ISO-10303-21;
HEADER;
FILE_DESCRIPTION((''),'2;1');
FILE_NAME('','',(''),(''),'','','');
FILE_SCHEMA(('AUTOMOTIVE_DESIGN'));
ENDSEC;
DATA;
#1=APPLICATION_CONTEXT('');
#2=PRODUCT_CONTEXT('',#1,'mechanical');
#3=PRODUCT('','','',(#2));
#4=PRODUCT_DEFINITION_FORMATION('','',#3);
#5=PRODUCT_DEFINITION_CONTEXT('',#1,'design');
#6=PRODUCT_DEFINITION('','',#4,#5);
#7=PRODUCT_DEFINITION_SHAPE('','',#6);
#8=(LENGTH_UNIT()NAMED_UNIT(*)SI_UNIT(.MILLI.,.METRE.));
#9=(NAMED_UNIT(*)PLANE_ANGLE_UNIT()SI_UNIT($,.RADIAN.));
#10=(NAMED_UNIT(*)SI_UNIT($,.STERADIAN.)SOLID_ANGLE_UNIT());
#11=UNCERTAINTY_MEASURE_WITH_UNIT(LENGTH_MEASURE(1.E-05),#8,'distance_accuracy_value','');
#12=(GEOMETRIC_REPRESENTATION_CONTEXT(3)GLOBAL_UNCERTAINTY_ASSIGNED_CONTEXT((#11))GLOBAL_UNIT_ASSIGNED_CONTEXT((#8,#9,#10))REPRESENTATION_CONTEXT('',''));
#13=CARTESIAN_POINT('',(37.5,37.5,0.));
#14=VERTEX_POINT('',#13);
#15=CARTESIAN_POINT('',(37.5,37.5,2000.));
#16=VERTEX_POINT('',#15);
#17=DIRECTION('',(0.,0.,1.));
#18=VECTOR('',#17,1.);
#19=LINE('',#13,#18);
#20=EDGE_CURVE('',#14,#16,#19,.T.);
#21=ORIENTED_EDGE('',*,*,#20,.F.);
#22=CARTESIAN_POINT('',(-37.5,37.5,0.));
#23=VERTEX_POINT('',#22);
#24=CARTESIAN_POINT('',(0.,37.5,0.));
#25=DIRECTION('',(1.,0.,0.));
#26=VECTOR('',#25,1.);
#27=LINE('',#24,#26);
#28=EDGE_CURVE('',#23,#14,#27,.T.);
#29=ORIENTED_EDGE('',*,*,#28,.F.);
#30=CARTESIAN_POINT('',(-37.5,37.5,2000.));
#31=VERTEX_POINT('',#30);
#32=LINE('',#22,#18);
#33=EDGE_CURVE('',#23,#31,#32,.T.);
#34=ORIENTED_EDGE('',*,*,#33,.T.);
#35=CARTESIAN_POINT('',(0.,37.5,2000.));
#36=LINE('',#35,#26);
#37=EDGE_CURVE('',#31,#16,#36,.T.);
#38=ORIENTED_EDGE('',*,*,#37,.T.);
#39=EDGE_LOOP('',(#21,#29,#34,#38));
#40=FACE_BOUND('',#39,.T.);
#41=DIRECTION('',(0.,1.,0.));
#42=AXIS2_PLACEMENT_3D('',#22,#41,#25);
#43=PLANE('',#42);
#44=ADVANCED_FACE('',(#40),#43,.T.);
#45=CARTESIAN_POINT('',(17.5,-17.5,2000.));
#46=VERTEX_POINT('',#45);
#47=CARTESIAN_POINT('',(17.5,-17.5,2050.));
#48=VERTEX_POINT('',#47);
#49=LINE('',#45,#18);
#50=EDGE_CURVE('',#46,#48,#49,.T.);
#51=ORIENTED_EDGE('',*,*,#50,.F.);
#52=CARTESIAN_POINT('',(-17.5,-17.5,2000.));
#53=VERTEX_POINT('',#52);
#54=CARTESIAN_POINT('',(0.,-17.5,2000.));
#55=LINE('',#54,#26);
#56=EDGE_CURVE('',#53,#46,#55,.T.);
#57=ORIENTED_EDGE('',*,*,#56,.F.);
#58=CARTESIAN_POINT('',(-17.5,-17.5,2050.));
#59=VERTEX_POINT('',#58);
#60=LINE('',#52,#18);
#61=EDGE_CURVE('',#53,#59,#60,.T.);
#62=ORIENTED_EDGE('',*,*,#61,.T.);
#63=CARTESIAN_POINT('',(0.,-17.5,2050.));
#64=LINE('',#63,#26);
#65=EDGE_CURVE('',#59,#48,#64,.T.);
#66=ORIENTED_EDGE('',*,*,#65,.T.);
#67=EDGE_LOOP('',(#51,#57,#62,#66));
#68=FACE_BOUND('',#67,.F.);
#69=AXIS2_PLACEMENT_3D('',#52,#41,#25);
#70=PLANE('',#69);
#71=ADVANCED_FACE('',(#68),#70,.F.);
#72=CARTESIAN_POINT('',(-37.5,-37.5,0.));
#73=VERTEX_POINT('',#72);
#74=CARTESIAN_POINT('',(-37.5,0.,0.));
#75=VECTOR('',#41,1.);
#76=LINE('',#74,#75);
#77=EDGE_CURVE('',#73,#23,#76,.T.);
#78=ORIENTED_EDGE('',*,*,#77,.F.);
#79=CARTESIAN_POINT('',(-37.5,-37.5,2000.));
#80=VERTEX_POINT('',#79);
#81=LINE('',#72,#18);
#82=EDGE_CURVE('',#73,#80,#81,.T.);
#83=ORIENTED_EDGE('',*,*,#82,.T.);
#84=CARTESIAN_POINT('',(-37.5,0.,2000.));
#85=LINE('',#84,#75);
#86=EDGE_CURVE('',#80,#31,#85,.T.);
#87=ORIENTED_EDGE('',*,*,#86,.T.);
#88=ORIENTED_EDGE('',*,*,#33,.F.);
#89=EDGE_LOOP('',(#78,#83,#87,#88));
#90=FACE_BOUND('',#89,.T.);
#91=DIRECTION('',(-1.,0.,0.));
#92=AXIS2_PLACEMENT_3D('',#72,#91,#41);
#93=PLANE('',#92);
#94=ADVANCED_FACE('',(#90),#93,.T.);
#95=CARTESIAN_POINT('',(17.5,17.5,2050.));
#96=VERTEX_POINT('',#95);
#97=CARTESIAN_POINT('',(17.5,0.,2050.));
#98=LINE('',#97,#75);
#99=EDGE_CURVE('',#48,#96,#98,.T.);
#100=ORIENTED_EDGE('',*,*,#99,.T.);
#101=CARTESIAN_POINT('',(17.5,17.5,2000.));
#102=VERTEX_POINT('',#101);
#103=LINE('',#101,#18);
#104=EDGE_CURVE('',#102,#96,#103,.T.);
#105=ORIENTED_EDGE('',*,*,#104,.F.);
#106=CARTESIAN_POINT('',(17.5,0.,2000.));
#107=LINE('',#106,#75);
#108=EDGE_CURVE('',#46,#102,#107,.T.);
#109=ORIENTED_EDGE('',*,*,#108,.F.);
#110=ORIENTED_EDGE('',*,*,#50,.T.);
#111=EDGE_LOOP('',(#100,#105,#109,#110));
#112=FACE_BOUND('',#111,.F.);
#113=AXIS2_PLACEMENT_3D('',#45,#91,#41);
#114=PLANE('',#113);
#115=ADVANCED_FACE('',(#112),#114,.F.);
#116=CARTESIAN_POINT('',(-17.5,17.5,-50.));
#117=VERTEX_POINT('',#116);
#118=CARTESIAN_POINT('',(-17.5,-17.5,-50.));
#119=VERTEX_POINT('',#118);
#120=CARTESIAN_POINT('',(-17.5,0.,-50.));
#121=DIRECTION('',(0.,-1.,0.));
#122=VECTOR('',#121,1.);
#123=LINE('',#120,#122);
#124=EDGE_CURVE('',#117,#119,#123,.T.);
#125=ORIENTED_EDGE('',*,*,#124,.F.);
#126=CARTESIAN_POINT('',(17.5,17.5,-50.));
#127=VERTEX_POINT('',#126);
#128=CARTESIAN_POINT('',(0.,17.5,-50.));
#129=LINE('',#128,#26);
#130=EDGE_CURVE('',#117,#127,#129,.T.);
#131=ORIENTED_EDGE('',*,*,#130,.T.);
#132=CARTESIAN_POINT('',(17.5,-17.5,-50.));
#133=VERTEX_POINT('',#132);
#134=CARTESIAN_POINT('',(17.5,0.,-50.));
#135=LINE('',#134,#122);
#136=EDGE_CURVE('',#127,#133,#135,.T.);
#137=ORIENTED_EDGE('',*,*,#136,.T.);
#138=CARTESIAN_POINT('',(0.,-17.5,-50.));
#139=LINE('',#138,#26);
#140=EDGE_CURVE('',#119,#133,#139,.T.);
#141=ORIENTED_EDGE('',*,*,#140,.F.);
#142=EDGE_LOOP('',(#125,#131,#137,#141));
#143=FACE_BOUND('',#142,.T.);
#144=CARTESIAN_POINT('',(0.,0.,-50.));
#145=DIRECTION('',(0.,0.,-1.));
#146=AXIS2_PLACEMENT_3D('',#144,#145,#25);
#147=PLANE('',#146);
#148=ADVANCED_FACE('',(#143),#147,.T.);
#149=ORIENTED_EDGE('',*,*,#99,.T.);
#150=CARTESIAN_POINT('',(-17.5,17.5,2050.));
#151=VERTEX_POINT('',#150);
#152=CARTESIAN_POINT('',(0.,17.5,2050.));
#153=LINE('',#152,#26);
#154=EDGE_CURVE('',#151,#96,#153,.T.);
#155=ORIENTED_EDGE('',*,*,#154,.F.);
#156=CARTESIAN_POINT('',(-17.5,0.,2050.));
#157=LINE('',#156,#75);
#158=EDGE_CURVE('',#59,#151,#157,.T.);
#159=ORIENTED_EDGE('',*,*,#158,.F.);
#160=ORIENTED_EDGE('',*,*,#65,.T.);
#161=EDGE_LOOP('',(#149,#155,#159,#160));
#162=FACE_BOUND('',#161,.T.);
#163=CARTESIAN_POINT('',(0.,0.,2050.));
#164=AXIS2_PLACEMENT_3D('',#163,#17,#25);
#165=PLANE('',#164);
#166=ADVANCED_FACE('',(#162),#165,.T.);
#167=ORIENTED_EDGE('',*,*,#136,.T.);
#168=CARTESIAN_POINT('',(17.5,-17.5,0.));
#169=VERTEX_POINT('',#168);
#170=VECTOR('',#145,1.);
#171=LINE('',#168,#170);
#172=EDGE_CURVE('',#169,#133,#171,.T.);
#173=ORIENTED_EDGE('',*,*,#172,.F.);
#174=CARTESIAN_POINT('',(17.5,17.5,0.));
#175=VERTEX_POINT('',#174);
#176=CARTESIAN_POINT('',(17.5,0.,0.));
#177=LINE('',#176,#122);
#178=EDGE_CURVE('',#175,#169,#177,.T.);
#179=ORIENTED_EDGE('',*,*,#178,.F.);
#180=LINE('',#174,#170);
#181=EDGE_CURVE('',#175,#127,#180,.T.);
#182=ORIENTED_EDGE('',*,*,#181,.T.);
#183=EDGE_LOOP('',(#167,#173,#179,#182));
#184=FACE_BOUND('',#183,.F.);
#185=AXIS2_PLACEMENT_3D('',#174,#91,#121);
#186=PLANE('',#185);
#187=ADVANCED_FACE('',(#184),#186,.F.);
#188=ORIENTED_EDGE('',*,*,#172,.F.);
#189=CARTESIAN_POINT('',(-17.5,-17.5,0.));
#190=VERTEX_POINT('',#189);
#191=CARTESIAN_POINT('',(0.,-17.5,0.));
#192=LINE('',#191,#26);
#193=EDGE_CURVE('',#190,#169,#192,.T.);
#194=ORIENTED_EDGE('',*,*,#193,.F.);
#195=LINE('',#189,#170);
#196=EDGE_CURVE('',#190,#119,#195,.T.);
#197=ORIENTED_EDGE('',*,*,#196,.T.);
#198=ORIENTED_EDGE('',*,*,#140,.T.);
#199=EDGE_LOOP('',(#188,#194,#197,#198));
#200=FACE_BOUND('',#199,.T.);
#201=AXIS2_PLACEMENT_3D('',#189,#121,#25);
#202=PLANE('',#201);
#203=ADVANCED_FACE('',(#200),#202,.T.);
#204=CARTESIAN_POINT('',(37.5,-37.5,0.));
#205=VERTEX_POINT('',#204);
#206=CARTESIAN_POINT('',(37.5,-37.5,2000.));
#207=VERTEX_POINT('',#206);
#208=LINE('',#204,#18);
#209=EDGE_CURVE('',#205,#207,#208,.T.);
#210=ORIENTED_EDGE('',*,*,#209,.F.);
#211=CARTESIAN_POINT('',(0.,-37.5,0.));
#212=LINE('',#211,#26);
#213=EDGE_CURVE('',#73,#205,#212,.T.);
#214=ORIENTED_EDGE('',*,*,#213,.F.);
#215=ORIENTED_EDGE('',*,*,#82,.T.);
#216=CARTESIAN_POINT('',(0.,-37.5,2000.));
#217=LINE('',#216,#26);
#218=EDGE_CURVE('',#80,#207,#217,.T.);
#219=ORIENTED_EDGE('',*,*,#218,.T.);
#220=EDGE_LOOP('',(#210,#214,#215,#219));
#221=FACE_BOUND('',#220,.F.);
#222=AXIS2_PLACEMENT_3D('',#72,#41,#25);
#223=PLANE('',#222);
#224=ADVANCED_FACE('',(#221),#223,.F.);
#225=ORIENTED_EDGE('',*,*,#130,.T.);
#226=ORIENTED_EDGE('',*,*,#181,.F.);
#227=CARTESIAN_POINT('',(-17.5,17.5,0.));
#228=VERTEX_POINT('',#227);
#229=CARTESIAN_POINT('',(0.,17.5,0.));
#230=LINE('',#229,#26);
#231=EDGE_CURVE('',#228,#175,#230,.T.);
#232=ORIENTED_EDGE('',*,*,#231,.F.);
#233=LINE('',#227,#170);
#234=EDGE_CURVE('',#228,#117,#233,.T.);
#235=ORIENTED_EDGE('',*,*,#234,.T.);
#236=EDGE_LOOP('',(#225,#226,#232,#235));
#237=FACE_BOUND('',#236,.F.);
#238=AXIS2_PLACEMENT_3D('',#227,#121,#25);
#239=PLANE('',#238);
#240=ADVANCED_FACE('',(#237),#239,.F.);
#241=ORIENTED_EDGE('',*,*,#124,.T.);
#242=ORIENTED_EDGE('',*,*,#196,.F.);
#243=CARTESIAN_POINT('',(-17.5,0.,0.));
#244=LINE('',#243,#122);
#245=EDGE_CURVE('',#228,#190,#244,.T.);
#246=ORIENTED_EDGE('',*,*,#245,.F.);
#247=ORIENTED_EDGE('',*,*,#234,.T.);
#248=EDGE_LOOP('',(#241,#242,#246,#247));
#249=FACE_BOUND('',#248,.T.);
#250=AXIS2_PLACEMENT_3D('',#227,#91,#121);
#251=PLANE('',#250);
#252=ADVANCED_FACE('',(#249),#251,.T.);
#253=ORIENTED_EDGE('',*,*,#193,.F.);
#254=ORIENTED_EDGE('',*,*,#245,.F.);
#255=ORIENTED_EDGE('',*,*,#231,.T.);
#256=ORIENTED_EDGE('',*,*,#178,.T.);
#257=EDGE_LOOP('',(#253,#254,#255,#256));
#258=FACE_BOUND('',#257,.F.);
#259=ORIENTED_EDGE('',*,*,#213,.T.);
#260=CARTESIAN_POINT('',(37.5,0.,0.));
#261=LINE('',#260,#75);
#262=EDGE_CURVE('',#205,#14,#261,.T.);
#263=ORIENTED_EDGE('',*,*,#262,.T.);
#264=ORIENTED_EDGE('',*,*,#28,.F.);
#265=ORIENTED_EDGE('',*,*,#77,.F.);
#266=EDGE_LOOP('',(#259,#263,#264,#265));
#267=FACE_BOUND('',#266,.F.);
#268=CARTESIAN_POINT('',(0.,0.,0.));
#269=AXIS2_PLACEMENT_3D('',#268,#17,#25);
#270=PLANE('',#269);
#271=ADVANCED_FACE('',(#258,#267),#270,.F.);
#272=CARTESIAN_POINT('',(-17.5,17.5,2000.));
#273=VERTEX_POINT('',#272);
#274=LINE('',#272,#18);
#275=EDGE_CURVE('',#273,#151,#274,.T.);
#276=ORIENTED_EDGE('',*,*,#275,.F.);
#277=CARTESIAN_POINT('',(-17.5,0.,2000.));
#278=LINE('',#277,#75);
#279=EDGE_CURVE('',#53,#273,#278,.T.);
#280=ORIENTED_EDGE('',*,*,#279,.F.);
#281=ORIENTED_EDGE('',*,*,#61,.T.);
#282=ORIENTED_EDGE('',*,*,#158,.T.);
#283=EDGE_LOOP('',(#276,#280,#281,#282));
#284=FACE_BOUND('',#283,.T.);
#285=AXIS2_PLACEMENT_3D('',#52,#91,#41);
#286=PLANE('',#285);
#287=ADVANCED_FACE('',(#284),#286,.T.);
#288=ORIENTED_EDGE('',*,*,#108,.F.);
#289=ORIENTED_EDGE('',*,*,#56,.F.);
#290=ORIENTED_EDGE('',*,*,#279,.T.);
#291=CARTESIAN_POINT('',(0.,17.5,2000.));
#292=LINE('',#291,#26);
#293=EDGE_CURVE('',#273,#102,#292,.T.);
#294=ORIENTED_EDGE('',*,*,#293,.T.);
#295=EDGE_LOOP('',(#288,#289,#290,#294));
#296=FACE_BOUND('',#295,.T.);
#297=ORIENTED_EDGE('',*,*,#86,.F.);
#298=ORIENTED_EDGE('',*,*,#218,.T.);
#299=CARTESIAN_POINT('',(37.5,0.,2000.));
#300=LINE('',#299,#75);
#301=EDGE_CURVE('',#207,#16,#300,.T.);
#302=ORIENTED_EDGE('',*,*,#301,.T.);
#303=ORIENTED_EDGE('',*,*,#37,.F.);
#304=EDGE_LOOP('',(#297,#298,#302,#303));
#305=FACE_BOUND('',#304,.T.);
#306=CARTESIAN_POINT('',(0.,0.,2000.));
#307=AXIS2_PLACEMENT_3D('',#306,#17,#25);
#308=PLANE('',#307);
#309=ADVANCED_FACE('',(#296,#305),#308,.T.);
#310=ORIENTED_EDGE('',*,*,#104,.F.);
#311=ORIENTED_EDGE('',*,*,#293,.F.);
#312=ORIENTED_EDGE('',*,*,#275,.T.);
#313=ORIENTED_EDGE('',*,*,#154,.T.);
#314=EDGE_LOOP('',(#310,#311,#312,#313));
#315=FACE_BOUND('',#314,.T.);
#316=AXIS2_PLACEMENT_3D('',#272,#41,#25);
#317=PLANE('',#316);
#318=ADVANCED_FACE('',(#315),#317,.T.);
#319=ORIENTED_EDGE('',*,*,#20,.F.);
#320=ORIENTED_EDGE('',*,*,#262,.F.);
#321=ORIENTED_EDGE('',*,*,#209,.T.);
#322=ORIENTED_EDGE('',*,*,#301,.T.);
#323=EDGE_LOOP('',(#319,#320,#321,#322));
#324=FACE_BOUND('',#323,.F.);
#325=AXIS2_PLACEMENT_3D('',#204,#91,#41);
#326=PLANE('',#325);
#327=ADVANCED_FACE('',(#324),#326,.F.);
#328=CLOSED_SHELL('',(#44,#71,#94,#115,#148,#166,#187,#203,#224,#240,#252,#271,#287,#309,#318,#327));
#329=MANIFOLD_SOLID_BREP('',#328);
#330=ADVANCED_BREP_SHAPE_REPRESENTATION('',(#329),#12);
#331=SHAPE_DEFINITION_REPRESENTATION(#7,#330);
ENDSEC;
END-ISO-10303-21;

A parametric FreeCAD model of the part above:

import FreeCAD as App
import Part
import Sketcher

V = App.Vector

doc = App.newDocument("Part")
body = doc.addObject("PartDesign::Body", "Body")

# Sketch on XY plane
sketch1 = body.newObject("Sketcher::SketchObject", "Sketch")
sketch1.AttachmentSupport = (doc.getObject("XY_Plane"), [""])
sketch1.MapMode = "FlatFace"
sketch1.addGeometry([
    Part.LineSegment(V(-38, 38, 0), V(-38, -38, 0)),
    Part.LineSegment(V(-38, -38, 0), V(38, -38, 0)),
    Part.LineSegment(V(38, -38, 0), V(38, 38, 0)),
    Part.LineSegment(V(38, 38, 0), V(-38, 38, 0)),
], False)
sketch1.addConstraint([
    Sketcher.Constraint("Coincident", 0, 2, 1, 1),
    Sketcher.Constraint("Coincident", 1, 2, 2, 1),
    Sketcher.Constraint("Coincident", 2, 2, 3, 1),
    Sketcher.Constraint("Coincident", 3, 2, 0, 1),
    Sketcher.Constraint("Vertical", 0),
    Sketcher.Constraint("Horizontal", 1),
    Sketcher.Constraint("Vertical", 2),
    Sketcher.Constraint("Horizontal", 3),
    Sketcher.Constraint("Symmetric", 0, 2, 2, 2, -1, 1),
    Sketcher.Constraint("Equal", 3, 0),
    Sketcher.Constraint("DistanceX", 1, 1, 1, 2, 75.0),
])
pad1 = body.newObject("PartDesign::Pad", "Pad")
pad1.Profile = sketch1
pad1.Length = 2000

# Sketch on XY plane
sketch2 = body.newObject("Sketcher::SketchObject", "Sketch001")
sketch2.AttachmentSupport = (doc.getObject("XY_Plane"), [""])
sketch2.MapMode = "FlatFace"
sketch2.addGeometry([
    Part.LineSegment(V(-18, -18, 0), V(-18, 18, 0)),
    Part.LineSegment(V(-18, 18, 0), V(18, 18, 0)),
    Part.LineSegment(V(18, 18, 0), V(18, -18, 0)),
    Part.LineSegment(V(18, -18, 0), V(-18, -18, 0)),
], False)
sketch2.addConstraint([
    Sketcher.Constraint("Coincident", 0, 2, 1, 1),
    Sketcher.Constraint("Coincident", 1, 2, 2, 1),
    Sketcher.Constraint("Coincident", 2, 2, 3, 1),
    Sketcher.Constraint("Coincident", 3, 2, 0, 1),
    Sketcher.Constraint("Vertical", 0),
    Sketcher.Constraint("Horizontal", 1),
    Sketcher.Constraint("Vertical", 2),
    Sketcher.Constraint("Horizontal", 3),
    Sketcher.Constraint("Symmetric", 0, 2, 2, 2, -1, 1),
    Sketcher.Constraint("Equal", 3, 0),
    Sketcher.Constraint("DistanceX", 1, 1, 1, 2, 35.0),
])
pad2 = body.newObject("PartDesign::Pad", "Pad001")
pad2.Profile = sketch2
pad2.Length = 50
pad2.Reversed = True

# Sketch on XY plane
sketch3 = body.newObject("Sketcher::SketchObject", "Sketch002")
sketch3.AttachmentSupport = (doc.getObject("XY_Plane"), [""])
sketch3.MapMode = "FlatFace"
sketch3.AttachmentOffset = App.Placement(V(0, 0, 2000), App.Rotation())
sketch3.addGeometry([
    Part.LineSegment(V(-18, 18, 0), V(-18, -18, 0)),
    Part.LineSegment(V(-18, -18, 0), V(18, -18, 0)),
    Part.LineSegment(V(18, -18, 0), V(18, 18, 0)),
    Part.LineSegment(V(18, 18, 0), V(-18, 18, 0)),
], False)
sketch3.addConstraint([
    Sketcher.Constraint("Coincident", 0, 2, 1, 1),
    Sketcher.Constraint("Coincident", 1, 2, 2, 1),
    Sketcher.Constraint("Coincident", 2, 2, 3, 1),
    Sketcher.Constraint("Coincident", 3, 2, 0, 1),
    Sketcher.Constraint("Vertical", 0),
    Sketcher.Constraint("Horizontal", 1),
    Sketcher.Constraint("Vertical", 2),
    Sketcher.Constraint("Horizontal", 3),
    Sketcher.Constraint("Symmetric", 0, 2, 2, 2, -1, 1),
    Sketcher.Constraint("Equal", 3, 0),
    Sketcher.Constraint("DistanceX", 1, 1, 1, 2, 35.0),
])
pad3 = body.newObject("PartDesign::Pad", "Pad002")
pad3.Profile = sketch3
pad3.Length = 50

doc.recompute()
